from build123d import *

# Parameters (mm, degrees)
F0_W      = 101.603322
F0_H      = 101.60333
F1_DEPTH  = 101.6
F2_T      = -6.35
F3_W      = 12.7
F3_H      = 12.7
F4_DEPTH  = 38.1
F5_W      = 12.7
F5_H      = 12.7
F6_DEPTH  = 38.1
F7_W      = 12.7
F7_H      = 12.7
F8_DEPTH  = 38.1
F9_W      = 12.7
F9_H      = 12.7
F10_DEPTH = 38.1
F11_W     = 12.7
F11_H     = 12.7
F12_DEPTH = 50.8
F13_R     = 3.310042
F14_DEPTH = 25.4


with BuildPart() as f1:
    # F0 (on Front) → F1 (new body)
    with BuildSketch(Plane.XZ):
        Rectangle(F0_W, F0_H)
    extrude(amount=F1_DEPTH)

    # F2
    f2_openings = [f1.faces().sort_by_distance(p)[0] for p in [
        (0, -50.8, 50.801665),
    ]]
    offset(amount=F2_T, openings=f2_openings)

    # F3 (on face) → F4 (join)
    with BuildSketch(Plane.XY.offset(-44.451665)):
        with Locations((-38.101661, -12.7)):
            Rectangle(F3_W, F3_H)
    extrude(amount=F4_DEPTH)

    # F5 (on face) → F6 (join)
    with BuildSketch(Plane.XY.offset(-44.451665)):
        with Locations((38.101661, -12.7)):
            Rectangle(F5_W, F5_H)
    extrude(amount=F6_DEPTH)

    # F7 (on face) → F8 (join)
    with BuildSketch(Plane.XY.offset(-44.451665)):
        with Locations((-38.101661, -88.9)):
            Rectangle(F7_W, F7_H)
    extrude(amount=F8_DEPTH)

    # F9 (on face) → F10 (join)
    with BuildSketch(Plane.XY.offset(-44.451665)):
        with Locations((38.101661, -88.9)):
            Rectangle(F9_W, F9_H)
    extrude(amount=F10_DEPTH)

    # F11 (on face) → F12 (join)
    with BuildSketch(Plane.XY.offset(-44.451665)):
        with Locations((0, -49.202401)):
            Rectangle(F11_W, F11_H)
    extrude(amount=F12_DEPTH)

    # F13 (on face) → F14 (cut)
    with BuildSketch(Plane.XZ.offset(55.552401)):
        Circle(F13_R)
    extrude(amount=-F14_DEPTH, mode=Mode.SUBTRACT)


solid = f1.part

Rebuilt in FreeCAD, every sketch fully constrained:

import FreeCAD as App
import Part
import Sketcher
Q = App.Units.Quantity


def faces_at(feature, points):
    """Names of the faces that lie closest to the given points."""
    faces = feature.Shape.Faces
    near = lambda p: min(range(len(faces)), key=lambda i: faces[i].distToShape(Part.Vertex(*p))[0])
    return sorted({f"Face{near(p) + 1}" for p in points})


def add_polygon(sketch, points):
    """Adds a closed chain of lines whose ends are joined by coincident constraints."""
    first, n = sketch.GeometryCount, len(points)
    for a, b in zip(points, points[1:] + points[:1]):
        sketch.addGeometry(Part.LineSegment(App.Vector(*a, 0), App.Vector(*b, 0)), False)
    for i in range(n):
        sketch.addConstraint(Sketcher.Constraint("Coincident", first + i, 2, first + (i + 1) % n, 1))

doc = App.newDocument("Part")
params = doc.addObject("Spreadsheet::Sheet", "Params")
for row, (alias, value) in enumerate([
    ("pad1_length", "4 in"),
    ("thickness_wall", "0.25 in"),
    ("sketch2_width", "0.5 in"),
    ("pad2_length", "1.5 in"),
    ("sketch3_width", "0.5 in"),
    ("pad3_length", "1.5 in"),
    ("sketch4_width", "0.5 in"),
    ("pad4_length", "1.5 in"),
    ("sketch5_width", "0.5 in"),
    ("pad5_length", "1.5 in"),
    ("sketch6_width", "0.5 in"),
    ("pad6_length", "2 in"),
    ("pocket1_length", "1 in"),
], start=1):
    params.set(f"A{row}", alias)
    params.set(f"B{row}", "=" + value)
    params.setAlias(f"B{row}", alias)

body = doc.addObject("PartDesign::Body", "Body")

# Sketch on XZ plane
sketch1 = body.newObject("Sketcher::SketchObject", "Sketch")
sketch1.AttachmentSupport = (doc.getObject("XZ_Plane"), [""])
sketch1.MapMode = "FlatFace"
add_polygon(sketch1, [(-50.801661, 50.801665), (-50.801661, -50.801665), (50.801661, -50.801665), (50.801661, 50.801665)])  # lines 0-3
sketch1.addConstraint(Sketcher.Constraint("Vertical", 0))
sketch1.addConstraint(Sketcher.Constraint("Horizontal", 1))
sketch1.addConstraint(Sketcher.Constraint("Vertical", 2))
sketch1.addConstraint(Sketcher.Constraint("Horizontal", 3))
sketch1.addConstraint(Sketcher.Constraint("Symmetric", 0, 2, 2, 2, -1, 1))
sketch1.addConstraint(Sketcher.Constraint("DistanceY", 0, 2, 0, 1, 101.60333))
sketch1.addConstraint(Sketcher.Constraint("DistanceX", 1, 1, 1, 2, 101.603322))
pad1 = body.newObject("PartDesign::Pad", "Pad")
pad1.Profile = sketch1
pad1.setExpression("Length", "Params.pad1_length")
doc.recompute()

thickness = body.newObject("PartDesign::Thickness", "Thickness")
thickness.Base = (pad1, faces_at(pad1, [(0, -50.8, 50.802)]))
thickness.setExpression("Value", "Params.thickness_wall")
thickness.Reversed = True
thickness.Join = "Arc"

# Sketch on XY plane
sketch2 = body.newObject("Sketcher::SketchObject", "Sketch001")
sketch2.AttachmentSupport = (doc.getObject("XY_Plane"), [""])
sketch2.MapMode = "FlatFace"
sketch2.AttachmentOffset = App.Placement(App.Vector(0, 0, -44.451665), App.Rotation())
add_polygon(sketch2, [(-44.451661, -6.35), (-44.451661, -19.05), (-31.751661, -19.05), (-31.751661, -6.35)])  # lines 0-3
sketch2.addConstraint(Sketcher.Constraint("Vertical", 0))
sketch2.addConstraint(Sketcher.Constraint("Horizontal", 1))
sketch2.addConstraint(Sketcher.Constraint("Vertical", 2))
sketch2.addConstraint(Sketcher.Constraint("Horizontal", 3))
sketch2.addConstraint(Sketcher.Constraint("Equal", 3, 0))
sketch2.addConstraint(Sketcher.Constraint("DistanceX", 1, 1, 1, 2, Q("0.5 in")))
sketch2.addConstraint(Sketcher.Constraint("DistanceY", 0, 2, -1, 1, Q("0.75 in")))
sketch2.addConstraint(Sketcher.Constraint("DistanceX", 0, 2, -1, 1, 44.451661))
sketch2.setExpression("Constraints[9]", "Params.sketch2_width")
pad2 = body.newObject("PartDesign::Pad", "Pad001")
pad2.Profile = sketch2
pad2.setExpression("Length", "Params.pad2_length")

# Sketch on XY plane
sketch3 = body.newObject("Sketcher::SketchObject", "Sketch002")
sketch3.AttachmentSupport = (doc.getObject("XY_Plane"), [""])
sketch3.MapMode = "FlatFace"
sketch3.AttachmentOffset = App.Placement(App.Vector(0, 0, -44.451665), App.Rotation())
add_polygon(sketch3, [(31.751661, -6.35), (31.751661, -19.05), (44.451661, -19.05), (44.451661, -6.35)])  # lines 0-3
sketch3.addConstraint(Sketcher.Constraint("Vertical", 0))
sketch3.addConstraint(Sketcher.Constraint("Horizontal", 1))
sketch3.addConstraint(Sketcher.Constraint("Vertical", 2))
sketch3.addConstraint(Sketcher.Constraint("Horizontal", 3))
sketch3.addConstraint(Sketcher.Constraint("Equal", 3, 0))
sketch3.addConstraint(Sketcher.Constraint("DistanceX", 1, 1, 1, 2, Q("0.5 in")))
sketch3.addConstraint(Sketcher.Constraint("DistanceY", 0, 2, -1, 1, Q("0.75 in")))
sketch3.addConstraint(Sketcher.Constraint("DistanceX", -1, 1, 0, 2, 31.751661))
sketch3.setExpression("Constraints[9]", "Params.sketch3_width")
pad3 = body.newObject("PartDesign::Pad", "Pad002")
pad3.Profile = sketch3
pad3.setExpression("Length", "Params.pad3_length")

# Sketch on XY plane
sketch4 = body.newObject("Sketcher::SketchObject", "Sketch003")
sketch4.AttachmentSupport = (doc.getObject("XY_Plane"), [""])
sketch4.MapMode = "FlatFace"
sketch4.AttachmentOffset = App.Placement(App.Vector(0, 0, -44.451665), App.Rotation())
add_polygon(sketch4, [(-44.451661, -82.55), (-44.451661, -95.25), (-31.751661, -95.25), (-31.751661, -82.55)])  # lines 0-3
sketch4.addConstraint(Sketcher.Constraint("Vertical", 0))
sketch4.addConstraint(Sketcher.Constraint("Horizontal", 1))
sketch4.addConstraint(Sketcher.Constraint("Vertical", 2))
sketch4.addConstraint(Sketcher.Constraint("Horizontal", 3))
sketch4.addConstraint(Sketcher.Constraint("Equal", 3, 0))
sketch4.addConstraint(Sketcher.Constraint("DistanceX", 1, 1, 1, 2, Q("0.5 in")))
sketch4.addConstraint(Sketcher.Constraint("DistanceY", 0, 2, -1, 1, Q("3.75 in")))
sketch4.addConstraint(Sketcher.Constraint("DistanceX", 0, 2, -1, 1, 44.451661))
sketch4.setExpression("Constraints[9]", "Params.sketch4_width")
pad4 = body.newObject("PartDesign::Pad", "Pad003")
pad4.Profile = sketch4
pad4.setExpression("Length", "Params.pad4_length")

# Sketch on XY plane
sketch5 = body.newObject("Sketcher::SketchObject", "Sketch004")
sketch5.AttachmentSupport = (doc.getObject("XY_Plane"), [""])
sketch5.MapMode = "FlatFace"
sketch5.AttachmentOffset = App.Placement(App.Vector(0, 0, -44.451665), App.Rotation())
add_polygon(sketch5, [(31.751661, -82.55), (31.751661, -95.25), (44.451661, -95.25), (44.451661, -82.55)])  # lines 0-3
sketch5.addConstraint(Sketcher.Constraint("Vertical", 0))
sketch5.addConstraint(Sketcher.Constraint("Horizontal", 1))
sketch5.addConstraint(Sketcher.Constraint("Vertical", 2))
sketch5.addConstraint(Sketcher.Constraint("Horizontal", 3))
sketch5.addConstraint(Sketcher.Constraint("Equal", 3, 0))
sketch5.addConstraint(Sketcher.Constraint("DistanceX", 1, 1, 1, 2, Q("0.5 in")))
sketch5.addConstraint(Sketcher.Constraint("DistanceY", 0, 2, -1, 1, Q("3.75 in")))
sketch5.addConstraint(Sketcher.Constraint("DistanceX", -1, 1, 0, 2, 31.751661))
sketch5.setExpression("Constraints[9]", "Params.sketch5_width")
pad5 = body.newObject("PartDesign::Pad", "Pad004")
pad5.Profile = sketch5
pad5.setExpression("Length", "Params.pad5_length")

# Sketch on XY plane
sketch6 = body.newObject("Sketcher::SketchObject", "Sketch005")
sketch6.AttachmentSupport = (doc.getObject("XY_Plane"), [""])
sketch6.MapMode = "FlatFace"
sketch6.AttachmentOffset = App.Placement(App.Vector(0, 0, -44.451665), App.Rotation())
add_polygon(sketch6, [(-6.35, -42.852401), (-6.35, -55.552401), (6.35, -55.552401), (6.35, -42.852401)])  # lines 0-3
sketch6.addConstraint(Sketcher.Constraint("Vertical", 0))
sketch6.addConstraint(Sketcher.Constraint("Horizontal", 1))
sketch6.addConstraint(Sketcher.Constraint("Vertical", 2))
sketch6.addConstraint(Sketcher.Constraint("Horizontal", 3))
sketch6.addConstraint(Sketcher.Constraint("Equal", 3, 0))
sketch6.addConstraint(Sketcher.Constraint("DistanceX", 1, 1, 1, 2, Q("0.5 in")))
sketch6.addConstraint(Sketcher.Constraint("DistanceX", 0, 2, -1, 1, Q("0.25 in")))
sketch6.addConstraint(Sketcher.Constraint("DistanceY", 0, 2, -1, 1, 55.552401))
sketch6.setExpression("Constraints[9]", "Params.sketch6_width")
pad6 = body.newObject("PartDesign::Pad", "Pad005")
pad6.Profile = sketch6
pad6.setExpression("Length", "Params.pad6_length")

# Sketch on XZ plane
sketch7 = body.newObject("Sketcher::SketchObject", "Sketch006")
sketch7.AttachmentSupport = (doc.getObject("XZ_Plane"), [""])
sketch7.MapMode = "FlatFace"
sketch7.AttachmentOffset = App.Placement(App.Vector(0, 0, 55.552401), App.Rotation())
sketch7.addGeometry(Part.Circle(App.Vector(0, 0, 0), App.Vector(0, 0, 1), 3.310042), False)
sketch7.addConstraint(Sketcher.Constraint("Coincident", 0, 3, -1, 1))
sketch7.addConstraint(Sketcher.Constraint("Diameter", 0, 6.620084))
pocket1 = body.newObject("PartDesign::Pocket", "Pocket")
pocket1.Profile = sketch7
pocket1.setExpression("Length", "Params.pocket1_length")

doc.recompute()
